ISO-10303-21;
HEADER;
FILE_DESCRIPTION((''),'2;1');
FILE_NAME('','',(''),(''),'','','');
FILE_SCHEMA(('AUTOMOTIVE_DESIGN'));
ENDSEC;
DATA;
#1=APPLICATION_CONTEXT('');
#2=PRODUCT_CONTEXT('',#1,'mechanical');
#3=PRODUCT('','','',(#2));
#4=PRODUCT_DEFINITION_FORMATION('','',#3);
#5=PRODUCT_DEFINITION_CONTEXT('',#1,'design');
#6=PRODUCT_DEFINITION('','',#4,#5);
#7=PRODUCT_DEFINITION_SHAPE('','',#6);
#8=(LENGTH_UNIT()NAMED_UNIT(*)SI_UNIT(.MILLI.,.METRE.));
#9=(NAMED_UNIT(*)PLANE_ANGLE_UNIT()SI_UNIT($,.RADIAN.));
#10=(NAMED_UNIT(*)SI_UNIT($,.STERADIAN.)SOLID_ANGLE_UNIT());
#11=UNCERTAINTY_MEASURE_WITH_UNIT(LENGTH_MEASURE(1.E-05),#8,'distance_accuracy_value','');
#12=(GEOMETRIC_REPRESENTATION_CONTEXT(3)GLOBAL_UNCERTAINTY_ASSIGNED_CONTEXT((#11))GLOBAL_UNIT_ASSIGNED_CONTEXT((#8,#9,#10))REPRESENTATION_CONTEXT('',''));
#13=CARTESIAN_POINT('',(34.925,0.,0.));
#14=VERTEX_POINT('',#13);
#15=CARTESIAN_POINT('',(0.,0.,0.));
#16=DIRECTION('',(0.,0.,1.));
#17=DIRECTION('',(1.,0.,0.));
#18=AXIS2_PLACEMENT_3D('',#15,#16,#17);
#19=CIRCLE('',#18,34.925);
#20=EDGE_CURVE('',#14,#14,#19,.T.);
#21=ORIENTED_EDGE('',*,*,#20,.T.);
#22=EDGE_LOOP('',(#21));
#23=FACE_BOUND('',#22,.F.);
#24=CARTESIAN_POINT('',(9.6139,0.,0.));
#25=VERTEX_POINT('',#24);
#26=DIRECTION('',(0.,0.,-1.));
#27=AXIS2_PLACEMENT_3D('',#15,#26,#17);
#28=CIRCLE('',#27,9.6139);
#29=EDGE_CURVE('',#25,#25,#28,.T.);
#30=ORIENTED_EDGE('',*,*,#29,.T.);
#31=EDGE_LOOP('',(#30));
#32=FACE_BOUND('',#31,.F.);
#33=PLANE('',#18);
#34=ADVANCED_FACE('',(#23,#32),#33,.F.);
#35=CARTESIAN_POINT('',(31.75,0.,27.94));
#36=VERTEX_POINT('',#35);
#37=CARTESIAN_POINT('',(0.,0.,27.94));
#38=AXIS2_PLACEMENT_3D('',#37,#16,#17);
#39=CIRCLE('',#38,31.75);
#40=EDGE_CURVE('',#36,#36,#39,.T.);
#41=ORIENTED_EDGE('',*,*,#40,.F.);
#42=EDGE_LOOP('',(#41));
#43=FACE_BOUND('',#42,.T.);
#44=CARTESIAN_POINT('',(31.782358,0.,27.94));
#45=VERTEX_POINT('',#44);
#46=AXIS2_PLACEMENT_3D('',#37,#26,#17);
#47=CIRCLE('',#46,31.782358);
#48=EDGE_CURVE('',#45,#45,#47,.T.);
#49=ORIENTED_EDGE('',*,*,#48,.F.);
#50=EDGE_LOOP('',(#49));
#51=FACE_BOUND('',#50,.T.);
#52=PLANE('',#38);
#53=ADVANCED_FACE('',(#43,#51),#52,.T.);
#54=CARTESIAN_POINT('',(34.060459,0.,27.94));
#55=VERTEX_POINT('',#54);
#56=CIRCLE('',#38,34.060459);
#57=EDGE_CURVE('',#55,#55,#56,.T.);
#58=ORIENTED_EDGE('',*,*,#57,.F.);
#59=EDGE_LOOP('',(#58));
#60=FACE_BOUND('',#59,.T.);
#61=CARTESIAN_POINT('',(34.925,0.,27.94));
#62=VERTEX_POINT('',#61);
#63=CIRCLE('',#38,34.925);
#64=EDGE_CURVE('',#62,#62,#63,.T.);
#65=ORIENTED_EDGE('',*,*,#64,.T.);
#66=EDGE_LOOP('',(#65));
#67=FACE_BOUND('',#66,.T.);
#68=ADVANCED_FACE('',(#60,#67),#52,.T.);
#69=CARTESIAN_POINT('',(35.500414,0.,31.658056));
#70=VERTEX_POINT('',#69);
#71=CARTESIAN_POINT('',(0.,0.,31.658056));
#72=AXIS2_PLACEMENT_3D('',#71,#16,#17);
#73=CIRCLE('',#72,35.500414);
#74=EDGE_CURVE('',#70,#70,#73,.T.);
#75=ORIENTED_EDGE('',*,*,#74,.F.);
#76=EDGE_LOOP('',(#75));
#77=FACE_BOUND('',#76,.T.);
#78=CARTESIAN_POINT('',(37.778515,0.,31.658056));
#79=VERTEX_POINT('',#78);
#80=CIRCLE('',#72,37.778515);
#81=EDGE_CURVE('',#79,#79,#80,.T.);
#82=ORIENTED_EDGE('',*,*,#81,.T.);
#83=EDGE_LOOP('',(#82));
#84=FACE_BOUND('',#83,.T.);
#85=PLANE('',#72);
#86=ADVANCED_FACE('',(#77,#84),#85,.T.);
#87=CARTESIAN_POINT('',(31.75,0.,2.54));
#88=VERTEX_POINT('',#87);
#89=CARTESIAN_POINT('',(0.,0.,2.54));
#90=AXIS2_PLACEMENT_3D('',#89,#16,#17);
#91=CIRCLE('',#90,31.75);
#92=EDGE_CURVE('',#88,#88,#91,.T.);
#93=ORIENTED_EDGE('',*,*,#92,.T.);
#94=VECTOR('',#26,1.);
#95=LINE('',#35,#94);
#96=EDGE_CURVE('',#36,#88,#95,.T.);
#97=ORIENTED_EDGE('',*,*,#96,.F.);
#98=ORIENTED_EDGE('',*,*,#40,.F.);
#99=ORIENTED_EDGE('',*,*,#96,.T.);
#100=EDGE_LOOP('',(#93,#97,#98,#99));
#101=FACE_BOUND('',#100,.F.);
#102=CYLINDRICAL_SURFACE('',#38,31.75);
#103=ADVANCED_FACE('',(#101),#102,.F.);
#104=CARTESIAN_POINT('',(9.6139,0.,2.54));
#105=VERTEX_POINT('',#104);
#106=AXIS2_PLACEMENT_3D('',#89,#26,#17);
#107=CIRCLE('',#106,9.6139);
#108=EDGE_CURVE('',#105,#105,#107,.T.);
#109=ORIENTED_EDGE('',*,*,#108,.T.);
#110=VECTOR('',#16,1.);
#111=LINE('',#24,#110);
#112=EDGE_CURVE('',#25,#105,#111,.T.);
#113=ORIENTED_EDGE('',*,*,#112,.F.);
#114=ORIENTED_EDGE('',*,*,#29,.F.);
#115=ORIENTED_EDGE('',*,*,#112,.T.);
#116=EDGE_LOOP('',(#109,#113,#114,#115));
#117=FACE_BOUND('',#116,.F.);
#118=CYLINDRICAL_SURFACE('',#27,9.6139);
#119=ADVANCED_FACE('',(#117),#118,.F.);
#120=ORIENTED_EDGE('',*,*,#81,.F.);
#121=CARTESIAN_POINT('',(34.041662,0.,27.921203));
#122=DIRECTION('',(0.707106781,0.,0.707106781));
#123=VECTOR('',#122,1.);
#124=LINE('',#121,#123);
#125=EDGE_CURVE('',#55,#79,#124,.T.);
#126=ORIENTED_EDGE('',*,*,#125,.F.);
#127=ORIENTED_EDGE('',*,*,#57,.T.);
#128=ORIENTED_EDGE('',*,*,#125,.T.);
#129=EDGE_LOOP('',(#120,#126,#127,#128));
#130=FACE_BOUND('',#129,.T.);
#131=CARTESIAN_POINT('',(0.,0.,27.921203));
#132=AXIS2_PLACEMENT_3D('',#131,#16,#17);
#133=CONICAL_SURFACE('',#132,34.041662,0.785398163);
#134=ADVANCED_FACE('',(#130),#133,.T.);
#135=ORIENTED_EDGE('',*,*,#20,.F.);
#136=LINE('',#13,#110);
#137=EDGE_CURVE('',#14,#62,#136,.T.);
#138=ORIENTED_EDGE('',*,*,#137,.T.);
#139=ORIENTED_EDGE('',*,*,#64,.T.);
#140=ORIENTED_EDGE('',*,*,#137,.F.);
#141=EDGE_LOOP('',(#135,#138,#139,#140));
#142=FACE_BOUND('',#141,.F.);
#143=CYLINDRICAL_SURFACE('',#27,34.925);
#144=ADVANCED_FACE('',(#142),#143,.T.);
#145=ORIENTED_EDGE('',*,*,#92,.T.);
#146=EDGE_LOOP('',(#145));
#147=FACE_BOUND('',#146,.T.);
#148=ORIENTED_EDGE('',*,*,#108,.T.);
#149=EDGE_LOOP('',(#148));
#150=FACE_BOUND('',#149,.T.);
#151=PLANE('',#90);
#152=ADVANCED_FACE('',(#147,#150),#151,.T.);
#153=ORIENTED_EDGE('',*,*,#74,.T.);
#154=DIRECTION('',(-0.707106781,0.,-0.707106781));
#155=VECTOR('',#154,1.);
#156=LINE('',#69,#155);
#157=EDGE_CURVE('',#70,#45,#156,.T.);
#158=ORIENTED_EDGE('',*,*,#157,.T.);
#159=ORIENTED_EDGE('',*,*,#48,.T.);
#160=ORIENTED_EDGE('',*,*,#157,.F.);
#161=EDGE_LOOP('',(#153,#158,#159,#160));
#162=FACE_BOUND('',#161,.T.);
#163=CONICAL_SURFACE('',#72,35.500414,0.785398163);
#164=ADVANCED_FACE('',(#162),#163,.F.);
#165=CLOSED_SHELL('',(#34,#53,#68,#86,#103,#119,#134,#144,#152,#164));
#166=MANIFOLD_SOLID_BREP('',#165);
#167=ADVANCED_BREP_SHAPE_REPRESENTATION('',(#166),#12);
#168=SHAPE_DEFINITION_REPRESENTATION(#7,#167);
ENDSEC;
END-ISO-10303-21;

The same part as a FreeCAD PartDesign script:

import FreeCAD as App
import Part
import Sketcher

V = App.Vector
Q = App.Units.Quantity


def add_polygon(sketch, points):
    """Adds a closed chain of lines whose ends are joined by coincident constraints."""
    first, n = sketch.GeometryCount, len(points)
    for a, b in zip(points, points[1:] + points[:1]):
        sketch.addGeometry(Part.LineSegment(App.Vector(*a, 0), App.Vector(*b, 0)), False)
    for i in range(n):
        sketch.addConstraint(Sketcher.Constraint("Coincident", first + i, 2, first + (i + 1) % n, 1))

doc = App.newDocument("Part")
body = doc.addObject("PartDesign::Body", "Body")

sketch1 = body.newObject("Sketcher::SketchObject", "Sketch")
sketch1.AttachmentSupport = (doc.getObject("XY_Plane"), [""])
sketch1.MapMode = "FlatFace"
sketch1.addGeometry(Part.Circle(V(0, 0, 0), V(0, 0, 1), 35), False)
sketch1.addConstraint(Sketcher.Constraint("Coincident", 0, 3, -1, 1))
sketch1.addConstraint(Sketcher.Constraint("Diameter", 0, Q("2.75 in")))
pad1 = body.newObject("PartDesign::Pad", "Pad")
pad1.Profile = sketch1
pad1.Length = Q("1.1 in")

sketch2 = body.newObject("Sketcher::SketchObject", "Sketch001")
sketch2.AttachmentSupport = (doc.getObject("XY_Plane"), [""])
sketch2.MapMode = "FlatFace"
sketch2.AttachmentOffset = App.Placement(V(0, 0, 1.1 * 25.4), App.Rotation())
sketch2.addGeometry(Part.Circle(V(0, 0, 0), V(0, 0, 1), 32), False)
sketch2.addConstraint(Sketcher.Constraint("Coincident", 0, 3, -1, 1))
sketch2.addConstraint(Sketcher.Constraint("Diameter", 0, Q("2.5 in")))
pocket1 = body.newObject("PartDesign::Pocket", "Pocket")
pocket1.Profile = sketch2
pocket1.Length = Q("1 in")

sketch3 = body.newObject("Sketcher::SketchObject", "Sketch002")
sketch3.AttachmentSupport = (doc.getObject("XY_Plane"), [""])
sketch3.MapMode = "FlatFace"
sketch3.addGeometry(Part.Circle(V(0, 0, 0), V(0, 0, 1), 10), False)
sketch3.addConstraint(Sketcher.Constraint("Coincident", 0, 3, -1, 1))
sketch3.addConstraint(Sketcher.Constraint("Diameter", 0, Q("0.757 in")))
pocket2 = body.newObject("PartDesign::Pocket", "Pocket001")
pocket2.Profile = sketch3
pocket2.Type = "ThroughAll"
pocket2.Reversed = True

sketch4 = body.newObject("Sketcher::SketchObject", "Sketch003")
sketch4.AttachmentSupport = (doc.getObject("XZ_Plane"), [""])
sketch4.MapMode = "FlatFace"
add_polygon(sketch4, [(34, 27.9), (37.8, 31.7), (35.5, 31.7), (31.8, 27.9)])
sketch4.addConstraint(Sketcher.Constraint("Horizontal", 1))
sketch4.addConstraint(Sketcher.Constraint("Horizontal", 3))
sketch4.addConstraint(Sketcher.Constraint("Parallel", 0, 2))
sketch4.addConstraint(Sketcher.Constraint("Angle", 0, Q("45 deg")))
sketch4.addConstraint(Sketcher.Constraint("DistanceX", 1, 2, 1, 1, Q("2.278101 mm")))
sketch4.addConstraint(Sketcher.Constraint("Distance", 0, Q("5.284708 mm")))
sketch4.addConstraint(Sketcher.Constraint("DistanceX", -1, 1, 2, 2, Q("31.763561 mm")))
sketch4.addConstraint(Sketcher.Constraint("DistanceY", -1, 1, 0, 2, Q("31.658056 mm")))
revolution = body.newObject("PartDesign::Revolution", "Revolution")
revolution.Profile = sketch4
revolution.ReferenceAxis = (sketch4, ["V_Axis"])
revolution.Angle = 360

doc.recompute()
